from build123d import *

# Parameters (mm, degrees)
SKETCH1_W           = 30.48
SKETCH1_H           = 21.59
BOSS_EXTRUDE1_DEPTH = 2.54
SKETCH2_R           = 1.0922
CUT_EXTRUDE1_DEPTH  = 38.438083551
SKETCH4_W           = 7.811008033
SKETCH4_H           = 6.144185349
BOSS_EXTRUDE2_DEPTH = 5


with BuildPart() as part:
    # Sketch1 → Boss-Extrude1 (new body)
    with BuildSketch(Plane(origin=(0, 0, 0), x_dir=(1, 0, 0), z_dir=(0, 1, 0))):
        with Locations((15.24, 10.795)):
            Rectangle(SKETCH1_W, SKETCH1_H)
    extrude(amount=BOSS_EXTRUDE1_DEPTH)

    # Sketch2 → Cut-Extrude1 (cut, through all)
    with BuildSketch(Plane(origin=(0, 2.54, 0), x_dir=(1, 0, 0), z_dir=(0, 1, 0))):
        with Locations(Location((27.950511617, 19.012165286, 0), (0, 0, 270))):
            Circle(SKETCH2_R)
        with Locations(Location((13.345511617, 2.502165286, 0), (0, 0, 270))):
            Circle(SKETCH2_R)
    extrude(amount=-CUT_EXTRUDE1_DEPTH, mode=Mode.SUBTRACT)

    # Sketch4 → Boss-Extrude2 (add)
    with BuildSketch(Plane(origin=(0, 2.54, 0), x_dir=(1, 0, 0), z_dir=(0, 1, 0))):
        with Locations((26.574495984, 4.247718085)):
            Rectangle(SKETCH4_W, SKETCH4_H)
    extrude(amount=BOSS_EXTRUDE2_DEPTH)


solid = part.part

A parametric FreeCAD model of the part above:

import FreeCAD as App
import Part
import Sketcher

V = App.Vector
Q = App.Units.Quantity


def add_polygon(sketch, points):
    """Adds a closed chain of lines whose ends are joined by coincident constraints."""
    first, n = sketch.GeometryCount, len(points)
    for a, b in zip(points, points[1:] + points[:1]):
        sketch.addGeometry(Part.LineSegment(App.Vector(*a, 0), App.Vector(*b, 0)), False)
    for i in range(n):
        sketch.addConstraint(Sketcher.Constraint("Coincident", first + i, 2, first + (i + 1) % n, 1))

doc = App.newDocument("Part")
params = doc.addObject("Spreadsheet::Sheet", "Params")
for row, (alias, value) in enumerate([
    ("sketch1_width", "1.2 in"),
    ("sketch1_height", "0.85 in"),
    ("pad1_length", "0.1 in"),
    ("sketch2_diameter", "0.086 in"),
    ("pad2_length", "5 mm"),
], start=1):
    params.set(f"A{row}", alias)
    params.set(f"B{row}", "=" + value)
    params.setAlias(f"B{row}", alias)

body = doc.addObject("PartDesign::Body", "Body")

# Sketch on XZ plane
sketch1 = body.newObject("Sketcher::SketchObject", "Sketch")
sketch1.AttachmentSupport = (doc.getObject("XZ_Plane"), [""])
sketch1.MapMode = "FlatFace"
add_polygon(sketch1, [(0, -22), (0, 0), (30, 0), (30, -22)])  # lines 0-3
sketch1.addConstraint(Sketcher.Constraint("Vertical", 0))
sketch1.addConstraint(Sketcher.Constraint("Horizontal", 1))
sketch1.addConstraint(Sketcher.Constraint("Vertical", 2))
sketch1.addConstraint(Sketcher.Constraint("Horizontal", 3))
sketch1.addConstraint(Sketcher.Constraint("Coincident", 0, 2, -1, 1))
sketch1.addConstraint(Sketcher.Constraint("DistanceX", 1, 1, 1, 2, Q("1.2 in")))
sketch1.addConstraint(Sketcher.Constraint("DistanceY", 0, 1, 0, 2, Q("0.85 in")))
sketch1.setExpression("Constraints[9]", "Params.sketch1_width")
sketch1.setExpression("Constraints[10]", "Params.sketch1_height")
pad1 = body.newObject("PartDesign::Pad", "Pad")
pad1.Profile = sketch1
pad1.setExpression("Length", "Params.pad1_length")
pad1.Reversed = True

# Sketch on XZ plane
sketch2 = body.newObject("Sketcher::SketchObject", "Sketch001")
sketch2.AttachmentSupport = (doc.getObject("XZ_Plane"), [""])
sketch2.MapMode = "FlatFace"
sketch2.AttachmentOffset = App.Placement(V(0, 0, -0.1 * 25.4), App.Rotation())
sketch2.addGeometry(Part.Circle(V(28, -19, 0), V(0, 0, 1), 1.1), False)
sketch2.addGeometry(Part.Circle(V(13.3, -2.5, 0), V(0, 0, 1), 1.1), False)
sketch2.addConstraint(Sketcher.Constraint("Equal", 0, 1))
sketch2.addConstraint(Sketcher.Constraint("Diameter", 0, Q("0.086 in")))
sketch2.addConstraint(Sketcher.Constraint("DistanceY", 0, 3, 1, 3, Q("0.65 in")))
sketch2.addConstraint(Sketcher.Constraint("DistanceX", 1, 3, 0, 3, Q("0.575 in")))
sketch2.addConstraint(Sketcher.Constraint("DistanceX", -1, 1, 0, 3, Q("27.950512 mm")))
sketch2.addConstraint(Sketcher.Constraint("DistanceY", 0, 3, -1, 1, Q("19.012165 mm")))
sketch2.setExpression("Constraints[1]", "Params.sketch2_diameter")
pocket1 = body.newObject("PartDesign::Pocket", "Pocket")
pocket1.Profile = sketch2
pocket1.Type = "ThroughAll"
pocket1.Reversed = True

# Sketch on XZ plane
sketch3 = body.newObject("Sketcher::SketchObject", "Sketch002")
sketch3.AttachmentSupport = (doc.getObject("XZ_Plane"), [""])
sketch3.MapMode = "FlatFace"
sketch3.AttachmentOffset = App.Placement(V(0, 0, -0.1 * 25.4), App.Rotation())
add_polygon(sketch3, [(23, -7), (23, -1), (30, -1), (30, -7)])  # lines 0-3
sketch3.addConstraint(Sketcher.Constraint("Vertical", 0))
sketch3.addConstraint(Sketcher.Constraint("Horizontal", 1))
sketch3.addConstraint(Sketcher.Constraint("Vertical", 2))
sketch3.addConstraint(Sketcher.Constraint("Horizontal", 3))
sketch3.addConstraint(Sketcher.Constraint("DistanceX", -1, 1, 1, 2, Q("1.2 in")))
sketch3.addConstraint(Sketcher.Constraint("DistanceX", 1, 1, 1, 2, Q("7.811008 mm")))
sketch3.addConstraint(Sketcher.Constraint("DistanceY", 0, 1, 0, 2, Q("6.144185 mm")))
sketch3.addConstraint(Sketcher.Constraint("DistanceY", 2, 2, -1, 1, Q("7.319811 mm")))
pad2 = body.newObject("PartDesign::Pad", "Pad001")
pad2.Profile = sketch3
pad2.setExpression("Length", "Params.pad2_length")
pad2.Reversed = True

doc.recompute()
